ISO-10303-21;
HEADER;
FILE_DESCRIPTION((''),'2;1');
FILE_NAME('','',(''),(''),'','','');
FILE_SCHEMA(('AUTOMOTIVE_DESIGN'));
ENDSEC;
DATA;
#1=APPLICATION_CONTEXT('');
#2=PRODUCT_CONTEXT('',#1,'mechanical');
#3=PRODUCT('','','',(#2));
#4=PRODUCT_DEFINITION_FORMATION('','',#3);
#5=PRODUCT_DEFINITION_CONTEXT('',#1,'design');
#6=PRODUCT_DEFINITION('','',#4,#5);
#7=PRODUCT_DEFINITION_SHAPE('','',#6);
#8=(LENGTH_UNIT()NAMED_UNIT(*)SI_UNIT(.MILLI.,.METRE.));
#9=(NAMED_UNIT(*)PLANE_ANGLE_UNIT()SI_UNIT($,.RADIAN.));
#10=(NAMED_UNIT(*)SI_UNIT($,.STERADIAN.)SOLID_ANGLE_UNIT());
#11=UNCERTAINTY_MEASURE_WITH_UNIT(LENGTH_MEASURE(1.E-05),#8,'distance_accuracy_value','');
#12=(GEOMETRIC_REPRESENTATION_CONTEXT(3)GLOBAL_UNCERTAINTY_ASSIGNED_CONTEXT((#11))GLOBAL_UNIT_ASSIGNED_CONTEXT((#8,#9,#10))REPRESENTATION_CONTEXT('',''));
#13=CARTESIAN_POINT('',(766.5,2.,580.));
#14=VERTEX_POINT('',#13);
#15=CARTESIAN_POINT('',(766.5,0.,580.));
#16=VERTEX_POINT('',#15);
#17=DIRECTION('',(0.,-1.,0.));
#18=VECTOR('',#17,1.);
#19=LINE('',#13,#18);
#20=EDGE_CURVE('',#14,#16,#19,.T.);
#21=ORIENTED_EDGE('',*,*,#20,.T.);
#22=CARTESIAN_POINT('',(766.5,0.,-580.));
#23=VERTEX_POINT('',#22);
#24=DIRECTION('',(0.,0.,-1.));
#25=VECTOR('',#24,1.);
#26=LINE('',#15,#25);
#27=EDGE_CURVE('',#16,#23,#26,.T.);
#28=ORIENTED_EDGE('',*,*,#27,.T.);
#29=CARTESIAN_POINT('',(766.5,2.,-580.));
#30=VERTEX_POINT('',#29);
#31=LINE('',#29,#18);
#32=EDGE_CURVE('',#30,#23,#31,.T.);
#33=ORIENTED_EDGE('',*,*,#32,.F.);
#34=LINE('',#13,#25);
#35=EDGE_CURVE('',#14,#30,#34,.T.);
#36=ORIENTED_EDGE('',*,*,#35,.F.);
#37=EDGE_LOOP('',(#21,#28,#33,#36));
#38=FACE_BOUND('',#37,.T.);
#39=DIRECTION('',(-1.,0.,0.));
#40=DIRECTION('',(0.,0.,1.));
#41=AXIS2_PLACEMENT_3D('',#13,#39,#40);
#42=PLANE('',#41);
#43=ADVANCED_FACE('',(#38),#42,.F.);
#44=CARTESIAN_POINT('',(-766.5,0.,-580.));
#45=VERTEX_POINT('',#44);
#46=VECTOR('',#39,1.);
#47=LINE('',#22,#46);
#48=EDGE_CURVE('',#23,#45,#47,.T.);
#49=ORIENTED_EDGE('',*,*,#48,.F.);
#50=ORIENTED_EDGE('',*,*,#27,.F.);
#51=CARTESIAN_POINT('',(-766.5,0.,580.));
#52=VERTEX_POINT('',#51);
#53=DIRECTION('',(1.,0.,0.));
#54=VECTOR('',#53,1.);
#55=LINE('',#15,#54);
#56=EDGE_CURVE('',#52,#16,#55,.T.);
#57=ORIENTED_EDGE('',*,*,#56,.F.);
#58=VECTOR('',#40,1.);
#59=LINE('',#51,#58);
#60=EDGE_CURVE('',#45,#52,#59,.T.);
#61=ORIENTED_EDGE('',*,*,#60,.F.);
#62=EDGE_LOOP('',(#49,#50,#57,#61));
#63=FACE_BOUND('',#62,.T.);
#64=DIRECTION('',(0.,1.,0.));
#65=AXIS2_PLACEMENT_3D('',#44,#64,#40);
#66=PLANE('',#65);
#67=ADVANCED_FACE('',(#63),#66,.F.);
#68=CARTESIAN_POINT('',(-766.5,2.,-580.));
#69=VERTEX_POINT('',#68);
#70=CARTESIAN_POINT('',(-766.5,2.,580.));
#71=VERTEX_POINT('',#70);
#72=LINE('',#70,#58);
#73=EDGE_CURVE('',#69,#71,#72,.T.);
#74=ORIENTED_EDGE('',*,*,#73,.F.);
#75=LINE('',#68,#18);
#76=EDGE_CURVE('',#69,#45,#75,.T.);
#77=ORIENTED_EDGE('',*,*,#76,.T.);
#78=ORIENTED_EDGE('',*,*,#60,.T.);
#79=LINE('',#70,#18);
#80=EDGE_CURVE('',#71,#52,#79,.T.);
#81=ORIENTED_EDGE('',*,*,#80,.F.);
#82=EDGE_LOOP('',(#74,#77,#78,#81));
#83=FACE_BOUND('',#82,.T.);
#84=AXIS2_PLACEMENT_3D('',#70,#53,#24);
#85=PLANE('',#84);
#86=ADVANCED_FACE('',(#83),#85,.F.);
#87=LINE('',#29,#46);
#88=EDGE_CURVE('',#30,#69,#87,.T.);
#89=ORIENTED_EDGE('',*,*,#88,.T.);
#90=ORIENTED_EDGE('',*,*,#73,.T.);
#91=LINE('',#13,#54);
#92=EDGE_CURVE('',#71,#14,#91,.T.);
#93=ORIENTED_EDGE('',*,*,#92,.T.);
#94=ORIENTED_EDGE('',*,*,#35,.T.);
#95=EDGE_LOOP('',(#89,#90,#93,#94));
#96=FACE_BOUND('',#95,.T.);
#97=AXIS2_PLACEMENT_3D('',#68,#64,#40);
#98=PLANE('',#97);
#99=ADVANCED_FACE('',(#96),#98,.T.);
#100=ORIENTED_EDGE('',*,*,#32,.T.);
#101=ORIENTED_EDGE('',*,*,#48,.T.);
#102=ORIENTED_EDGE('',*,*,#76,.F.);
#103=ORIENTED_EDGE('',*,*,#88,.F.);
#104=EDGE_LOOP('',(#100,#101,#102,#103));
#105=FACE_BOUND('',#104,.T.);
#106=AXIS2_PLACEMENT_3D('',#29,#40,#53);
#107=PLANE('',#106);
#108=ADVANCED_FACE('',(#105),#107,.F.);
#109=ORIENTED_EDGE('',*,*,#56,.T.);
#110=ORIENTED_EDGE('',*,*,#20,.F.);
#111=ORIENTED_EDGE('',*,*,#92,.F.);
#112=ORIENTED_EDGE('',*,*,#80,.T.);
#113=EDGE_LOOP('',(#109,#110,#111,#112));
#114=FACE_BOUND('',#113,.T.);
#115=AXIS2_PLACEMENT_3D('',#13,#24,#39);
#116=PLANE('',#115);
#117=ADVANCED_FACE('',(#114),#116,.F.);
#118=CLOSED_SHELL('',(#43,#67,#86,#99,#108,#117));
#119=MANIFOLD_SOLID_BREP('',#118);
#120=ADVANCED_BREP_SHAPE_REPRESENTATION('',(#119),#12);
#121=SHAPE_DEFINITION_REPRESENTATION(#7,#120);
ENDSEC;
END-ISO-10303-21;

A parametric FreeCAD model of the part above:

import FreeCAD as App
import Part
import Sketcher
Q = App.Units.Quantity


def add_polygon(sketch, points):
    """Adds a closed chain of lines whose ends are joined by coincident constraints."""
    first, n = sketch.GeometryCount, len(points)
    for a, b in zip(points, points[1:] + points[:1]):
        sketch.addGeometry(Part.LineSegment(App.Vector(*a, 0), App.Vector(*b, 0)), False)
    for i in range(n):
        sketch.addConstraint(Sketcher.Constraint("Coincident", first + i, 2, first + (i + 1) % n, 1))

doc = App.newDocument("Part")
body = doc.addObject("PartDesign::Body", "Body")

# Sketch on XZ plane
sketch1 = body.newObject("Sketcher::SketchObject", "Sketch")
sketch1.AttachmentSupport = (doc.getObject("XZ_Plane"), [""])
sketch1.MapMode = "FlatFace"
add_polygon(sketch1, [(-766.5, -580), (-766.5, 580), (766.5, 580), (766.5, -580)])  # lines 0-3
sketch1.addConstraint([
    Sketcher.Constraint("Vertical", 0),
    Sketcher.Constraint("Horizontal", 1),
    Sketcher.Constraint("Vertical", 2),
    Sketcher.Constraint("Horizontal", 3),
    Sketcher.Constraint("Symmetric", 0, 2, 2, 2, -1, 1),
    Sketcher.Constraint("DistanceX", 1, 1, 1, 2, Q("1533 mm")),
    Sketcher.Constraint("DistanceY", 0, 1, 0, 2, Q("1160 mm")),
])
pad1 = body.newObject("PartDesign::Pad", "Pad")
pad1.Profile = sketch1
pad1.Length = 2
pad1.Reversed = True

doc.recompute()
